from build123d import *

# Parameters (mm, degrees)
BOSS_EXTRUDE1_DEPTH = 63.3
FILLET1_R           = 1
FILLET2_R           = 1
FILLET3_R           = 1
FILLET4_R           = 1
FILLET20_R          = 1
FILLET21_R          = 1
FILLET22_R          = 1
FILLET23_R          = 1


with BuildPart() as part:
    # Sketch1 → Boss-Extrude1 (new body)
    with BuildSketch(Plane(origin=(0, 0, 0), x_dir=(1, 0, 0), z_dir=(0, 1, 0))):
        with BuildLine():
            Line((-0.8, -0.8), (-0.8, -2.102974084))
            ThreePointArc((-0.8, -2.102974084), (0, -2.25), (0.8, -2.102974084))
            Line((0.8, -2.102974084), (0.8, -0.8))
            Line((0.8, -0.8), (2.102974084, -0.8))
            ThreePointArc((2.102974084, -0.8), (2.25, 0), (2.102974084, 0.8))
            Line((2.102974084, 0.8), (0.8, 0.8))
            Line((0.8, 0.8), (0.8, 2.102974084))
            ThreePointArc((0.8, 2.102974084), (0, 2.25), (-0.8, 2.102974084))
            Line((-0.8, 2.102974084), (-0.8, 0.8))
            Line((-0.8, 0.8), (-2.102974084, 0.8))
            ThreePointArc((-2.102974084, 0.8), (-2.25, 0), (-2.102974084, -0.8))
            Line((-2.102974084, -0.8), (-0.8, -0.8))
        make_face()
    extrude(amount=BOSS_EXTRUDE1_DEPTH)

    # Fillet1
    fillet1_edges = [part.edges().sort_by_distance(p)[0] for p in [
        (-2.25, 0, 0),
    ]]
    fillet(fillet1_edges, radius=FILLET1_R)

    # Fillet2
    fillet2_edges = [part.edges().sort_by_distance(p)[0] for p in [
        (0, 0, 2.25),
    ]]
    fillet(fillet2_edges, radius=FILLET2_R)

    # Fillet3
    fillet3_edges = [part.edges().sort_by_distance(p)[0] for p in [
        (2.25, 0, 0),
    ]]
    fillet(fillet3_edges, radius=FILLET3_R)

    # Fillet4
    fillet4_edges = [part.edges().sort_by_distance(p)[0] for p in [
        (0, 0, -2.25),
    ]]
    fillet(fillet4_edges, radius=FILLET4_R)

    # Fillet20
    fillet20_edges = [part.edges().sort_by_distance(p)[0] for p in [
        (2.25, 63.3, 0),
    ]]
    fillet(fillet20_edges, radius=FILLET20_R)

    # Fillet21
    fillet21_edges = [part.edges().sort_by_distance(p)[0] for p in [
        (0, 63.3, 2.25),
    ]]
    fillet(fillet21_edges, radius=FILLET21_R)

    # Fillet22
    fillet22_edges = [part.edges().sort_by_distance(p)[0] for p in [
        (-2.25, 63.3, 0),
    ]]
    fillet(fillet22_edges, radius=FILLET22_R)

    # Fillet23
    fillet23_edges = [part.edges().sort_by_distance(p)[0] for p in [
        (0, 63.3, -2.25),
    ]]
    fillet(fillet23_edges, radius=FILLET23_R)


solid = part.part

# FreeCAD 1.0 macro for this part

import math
import FreeCAD as App
import Part
import Sketcher


def edges_at(feature, points):
    """Names of the edges that pass closest to the given points."""
    edges = feature.Shape.Edges
    near = lambda p: min(range(len(edges)), key=lambda i: edges[i].distToShape(Part.Vertex(*p))[0])
    return sorted({f"Edge{near(p) + 1}" for p in points})

doc = App.newDocument("Part")
body = doc.addObject("PartDesign::Body", "Body")

sketch1 = doc.addObject("Sketcher::SketchObject", "Sketch")
body.addObject(sketch1)
sketch1.AttachmentSupport = (doc.XZ_Plane, [""])
sketch1.MapMode = "FlatFace"
sketch1.addGeometry(Part.LineSegment(App.Vector(-0.8, 0.8, 0), App.Vector(-0.8, 2.102974, 0)), False)
sketch1.addGeometry(Part.ArcOfCircle(Part.Circle(App.Vector(0, 0, 0), App.Vector(0, 0, 1), 2.25), math.radians(69.172503), math.radians(110.827497)), False)
sketch1.addGeometry(Part.LineSegment(App.Vector(0.8, 2.102974, 0), App.Vector(0.8, 0.8, 0)), False)
sketch1.addGeometry(Part.LineSegment(App.Vector(0.8, 0.8, 0), App.Vector(2.102974, 0.8, 0)), False)
sketch1.addGeometry(Part.ArcOfCircle(Part.Circle(App.Vector(0, 0, 0), App.Vector(0, 0, 1), 2.25), math.radians(-20.827497), math.radians(20.827497)), False)
sketch1.addGeometry(Part.LineSegment(App.Vector(2.102974, -0.8, 0), App.Vector(0.8, -0.8, 0)), False)
sketch1.addGeometry(Part.LineSegment(App.Vector(0.8, -0.8, 0), App.Vector(0.8, -2.102974, 0)), False)
sketch1.addGeometry(Part.ArcOfCircle(Part.Circle(App.Vector(0, 0, 0), App.Vector(0, 0, 1), 2.25), math.radians(-110.827497), math.radians(-69.172503)), False)
sketch1.addGeometry(Part.LineSegment(App.Vector(-0.8, -2.102974, 0), App.Vector(-0.8, -0.8, 0)), False)
sketch1.addGeometry(Part.LineSegment(App.Vector(-0.8, -0.8, 0), App.Vector(-2.102974, -0.8, 0)), False)
sketch1.addGeometry(Part.ArcOfCircle(Part.Circle(App.Vector(0, 0, 0), App.Vector(0, 0, 1), 2.25), math.radians(159.172503), math.radians(200.827497)), False)
sketch1.addGeometry(Part.LineSegment(App.Vector(-2.102974, 0.8, 0), App.Vector(-0.8, 0.8, 0)), False)
sketch1.addConstraint(Sketcher.Constraint("Coincident", 0, 2, 1, 2))
sketch1.addConstraint(Sketcher.Constraint("Coincident", 1, 1, 2, 1))
sketch1.addConstraint(Sketcher.Constraint("Coincident", 2, 2, 3, 1))
sketch1.addConstraint(Sketcher.Constraint("Coincident", 3, 2, 4, 2))
sketch1.addConstraint(Sketcher.Constraint("Coincident", 4, 1, 5, 1))
sketch1.addConstraint(Sketcher.Constraint("Coincident", 5, 2, 6, 1))
sketch1.addConstraint(Sketcher.Constraint("Coincident", 6, 2, 7, 2))
sketch1.addConstraint(Sketcher.Constraint("Coincident", 7, 1, 8, 1))
sketch1.addConstraint(Sketcher.Constraint("Coincident", 8, 2, 9, 1))
sketch1.addConstraint(Sketcher.Constraint("Coincident", 9, 2, 10, 2))
sketch1.addConstraint(Sketcher.Constraint("Coincident", 10, 1, 11, 1))
sketch1.addConstraint(Sketcher.Constraint("Coincident", 11, 2, 0, 1))
sketch1.addConstraint(Sketcher.Constraint("Vertical", 0))
sketch1.addConstraint(Sketcher.Constraint("Vertical", 2))
sketch1.addConstraint(Sketcher.Constraint("Horizontal", 3))
sketch1.addConstraint(Sketcher.Constraint("Horizontal", 5))
sketch1.addConstraint(Sketcher.Constraint("Vertical", 6))
sketch1.addConstraint(Sketcher.Constraint("Vertical", 8))
sketch1.addConstraint(Sketcher.Constraint("Horizontal", 9))
sketch1.addConstraint(Sketcher.Constraint("Horizontal", 11))
sketch1.addConstraint(Sketcher.Constraint("Coincident", 1, 3, -1, 1))
sketch1.addConstraint(Sketcher.Constraint("Coincident", 4, 3, -1, 1))
sketch1.addConstraint(Sketcher.Constraint("Coincident", 7, 3, -1, 1))
sketch1.addConstraint(Sketcher.Constraint("Coincident", 10, 3, -1, 1))
sketch1.addConstraint(Sketcher.Constraint("Equal", 1, 4))
sketch1.addConstraint(Sketcher.Constraint("Equal", 4, 7))
sketch1.addConstraint(Sketcher.Constraint("Equal", 7, 10))
sketch1.addConstraint(Sketcher.Constraint("Symmetric", 2, 2, 8, 2, -1, 1))
sketch1.addConstraint(Sketcher.Constraint("Symmetric", 5, 2, 11, 2, -1, 1))
sketch1.addConstraint(Sketcher.Constraint("Symmetric", 5, 2, 8, 2, -2))
sketch1.addConstraint(Sketcher.Constraint("Equal", 11, 0))
sketch1.addConstraint(Sketcher.Constraint("Radius", 1, 2.25))
sketch1.addConstraint(Sketcher.Constraint("DistanceX", 0, 2, -1, 1, 0.8))
pad1 = doc.addObject("PartDesign::Pad", "Pad")
body.addObject(pad1)
pad1.Profile = sketch1
pad1.Length = 63.3
pad1.Reversed = True
doc.recompute()

fillet = doc.addObject("PartDesign::Fillet", "Fillet")
body.addObject(fillet)
fillet.Base = (pad1, edges_at(pad1, [(-2.25, 0, 0)]))
fillet.Radius = 1
doc.recompute()

fillet2 = doc.addObject("PartDesign::Fillet", "Fillet001")
body.addObject(fillet2)
fillet2.Base = (fillet, edges_at(fillet, [(0, 0, 2.25)]))
fillet2.Radius = 1
doc.recompute()

fillet3 = doc.addObject("PartDesign::Fillet", "Fillet002")
body.addObject(fillet3)
fillet3.Base = (fillet2, edges_at(fillet2, [(2.25, 0, 0)]))
fillet3.Radius = 1
doc.recompute()

fillet4 = doc.addObject("PartDesign::Fillet", "Fillet003")
body.addObject(fillet4)
fillet4.Base = (fillet3, edges_at(fillet3, [(0, 0, -2.25)]))
fillet4.Radius = 1
doc.recompute()

fillet5 = doc.addObject("PartDesign::Fillet", "Fillet004")
body.addObject(fillet5)
fillet5.Base = (fillet4, edges_at(fillet4, [(2.25, 63.3, 0)]))
fillet5.Radius = 1
doc.recompute()

fillet6 = doc.addObject("PartDesign::Fillet", "Fillet005")
body.addObject(fillet6)
fillet6.Base = (fillet5, edges_at(fillet5, [(0, 63.3, 2.25)]))
fillet6.Radius = 1
doc.recompute()

fillet7 = doc.addObject("PartDesign::Fillet", "Fillet006")
body.addObject(fillet7)
fillet7.Base = (fillet6, edges_at(fillet6, [(-2.25, 63.3, 0)]))
fillet7.Radius = 1
doc.recompute()

fillet8 = doc.addObject("PartDesign::Fillet", "Fillet007")
body.addObject(fillet8)
fillet8.Base = (fillet7, edges_at(fillet7, [(0, 63.3, -2.25)]))
fillet8.Radius = 1

doc.recompute()
